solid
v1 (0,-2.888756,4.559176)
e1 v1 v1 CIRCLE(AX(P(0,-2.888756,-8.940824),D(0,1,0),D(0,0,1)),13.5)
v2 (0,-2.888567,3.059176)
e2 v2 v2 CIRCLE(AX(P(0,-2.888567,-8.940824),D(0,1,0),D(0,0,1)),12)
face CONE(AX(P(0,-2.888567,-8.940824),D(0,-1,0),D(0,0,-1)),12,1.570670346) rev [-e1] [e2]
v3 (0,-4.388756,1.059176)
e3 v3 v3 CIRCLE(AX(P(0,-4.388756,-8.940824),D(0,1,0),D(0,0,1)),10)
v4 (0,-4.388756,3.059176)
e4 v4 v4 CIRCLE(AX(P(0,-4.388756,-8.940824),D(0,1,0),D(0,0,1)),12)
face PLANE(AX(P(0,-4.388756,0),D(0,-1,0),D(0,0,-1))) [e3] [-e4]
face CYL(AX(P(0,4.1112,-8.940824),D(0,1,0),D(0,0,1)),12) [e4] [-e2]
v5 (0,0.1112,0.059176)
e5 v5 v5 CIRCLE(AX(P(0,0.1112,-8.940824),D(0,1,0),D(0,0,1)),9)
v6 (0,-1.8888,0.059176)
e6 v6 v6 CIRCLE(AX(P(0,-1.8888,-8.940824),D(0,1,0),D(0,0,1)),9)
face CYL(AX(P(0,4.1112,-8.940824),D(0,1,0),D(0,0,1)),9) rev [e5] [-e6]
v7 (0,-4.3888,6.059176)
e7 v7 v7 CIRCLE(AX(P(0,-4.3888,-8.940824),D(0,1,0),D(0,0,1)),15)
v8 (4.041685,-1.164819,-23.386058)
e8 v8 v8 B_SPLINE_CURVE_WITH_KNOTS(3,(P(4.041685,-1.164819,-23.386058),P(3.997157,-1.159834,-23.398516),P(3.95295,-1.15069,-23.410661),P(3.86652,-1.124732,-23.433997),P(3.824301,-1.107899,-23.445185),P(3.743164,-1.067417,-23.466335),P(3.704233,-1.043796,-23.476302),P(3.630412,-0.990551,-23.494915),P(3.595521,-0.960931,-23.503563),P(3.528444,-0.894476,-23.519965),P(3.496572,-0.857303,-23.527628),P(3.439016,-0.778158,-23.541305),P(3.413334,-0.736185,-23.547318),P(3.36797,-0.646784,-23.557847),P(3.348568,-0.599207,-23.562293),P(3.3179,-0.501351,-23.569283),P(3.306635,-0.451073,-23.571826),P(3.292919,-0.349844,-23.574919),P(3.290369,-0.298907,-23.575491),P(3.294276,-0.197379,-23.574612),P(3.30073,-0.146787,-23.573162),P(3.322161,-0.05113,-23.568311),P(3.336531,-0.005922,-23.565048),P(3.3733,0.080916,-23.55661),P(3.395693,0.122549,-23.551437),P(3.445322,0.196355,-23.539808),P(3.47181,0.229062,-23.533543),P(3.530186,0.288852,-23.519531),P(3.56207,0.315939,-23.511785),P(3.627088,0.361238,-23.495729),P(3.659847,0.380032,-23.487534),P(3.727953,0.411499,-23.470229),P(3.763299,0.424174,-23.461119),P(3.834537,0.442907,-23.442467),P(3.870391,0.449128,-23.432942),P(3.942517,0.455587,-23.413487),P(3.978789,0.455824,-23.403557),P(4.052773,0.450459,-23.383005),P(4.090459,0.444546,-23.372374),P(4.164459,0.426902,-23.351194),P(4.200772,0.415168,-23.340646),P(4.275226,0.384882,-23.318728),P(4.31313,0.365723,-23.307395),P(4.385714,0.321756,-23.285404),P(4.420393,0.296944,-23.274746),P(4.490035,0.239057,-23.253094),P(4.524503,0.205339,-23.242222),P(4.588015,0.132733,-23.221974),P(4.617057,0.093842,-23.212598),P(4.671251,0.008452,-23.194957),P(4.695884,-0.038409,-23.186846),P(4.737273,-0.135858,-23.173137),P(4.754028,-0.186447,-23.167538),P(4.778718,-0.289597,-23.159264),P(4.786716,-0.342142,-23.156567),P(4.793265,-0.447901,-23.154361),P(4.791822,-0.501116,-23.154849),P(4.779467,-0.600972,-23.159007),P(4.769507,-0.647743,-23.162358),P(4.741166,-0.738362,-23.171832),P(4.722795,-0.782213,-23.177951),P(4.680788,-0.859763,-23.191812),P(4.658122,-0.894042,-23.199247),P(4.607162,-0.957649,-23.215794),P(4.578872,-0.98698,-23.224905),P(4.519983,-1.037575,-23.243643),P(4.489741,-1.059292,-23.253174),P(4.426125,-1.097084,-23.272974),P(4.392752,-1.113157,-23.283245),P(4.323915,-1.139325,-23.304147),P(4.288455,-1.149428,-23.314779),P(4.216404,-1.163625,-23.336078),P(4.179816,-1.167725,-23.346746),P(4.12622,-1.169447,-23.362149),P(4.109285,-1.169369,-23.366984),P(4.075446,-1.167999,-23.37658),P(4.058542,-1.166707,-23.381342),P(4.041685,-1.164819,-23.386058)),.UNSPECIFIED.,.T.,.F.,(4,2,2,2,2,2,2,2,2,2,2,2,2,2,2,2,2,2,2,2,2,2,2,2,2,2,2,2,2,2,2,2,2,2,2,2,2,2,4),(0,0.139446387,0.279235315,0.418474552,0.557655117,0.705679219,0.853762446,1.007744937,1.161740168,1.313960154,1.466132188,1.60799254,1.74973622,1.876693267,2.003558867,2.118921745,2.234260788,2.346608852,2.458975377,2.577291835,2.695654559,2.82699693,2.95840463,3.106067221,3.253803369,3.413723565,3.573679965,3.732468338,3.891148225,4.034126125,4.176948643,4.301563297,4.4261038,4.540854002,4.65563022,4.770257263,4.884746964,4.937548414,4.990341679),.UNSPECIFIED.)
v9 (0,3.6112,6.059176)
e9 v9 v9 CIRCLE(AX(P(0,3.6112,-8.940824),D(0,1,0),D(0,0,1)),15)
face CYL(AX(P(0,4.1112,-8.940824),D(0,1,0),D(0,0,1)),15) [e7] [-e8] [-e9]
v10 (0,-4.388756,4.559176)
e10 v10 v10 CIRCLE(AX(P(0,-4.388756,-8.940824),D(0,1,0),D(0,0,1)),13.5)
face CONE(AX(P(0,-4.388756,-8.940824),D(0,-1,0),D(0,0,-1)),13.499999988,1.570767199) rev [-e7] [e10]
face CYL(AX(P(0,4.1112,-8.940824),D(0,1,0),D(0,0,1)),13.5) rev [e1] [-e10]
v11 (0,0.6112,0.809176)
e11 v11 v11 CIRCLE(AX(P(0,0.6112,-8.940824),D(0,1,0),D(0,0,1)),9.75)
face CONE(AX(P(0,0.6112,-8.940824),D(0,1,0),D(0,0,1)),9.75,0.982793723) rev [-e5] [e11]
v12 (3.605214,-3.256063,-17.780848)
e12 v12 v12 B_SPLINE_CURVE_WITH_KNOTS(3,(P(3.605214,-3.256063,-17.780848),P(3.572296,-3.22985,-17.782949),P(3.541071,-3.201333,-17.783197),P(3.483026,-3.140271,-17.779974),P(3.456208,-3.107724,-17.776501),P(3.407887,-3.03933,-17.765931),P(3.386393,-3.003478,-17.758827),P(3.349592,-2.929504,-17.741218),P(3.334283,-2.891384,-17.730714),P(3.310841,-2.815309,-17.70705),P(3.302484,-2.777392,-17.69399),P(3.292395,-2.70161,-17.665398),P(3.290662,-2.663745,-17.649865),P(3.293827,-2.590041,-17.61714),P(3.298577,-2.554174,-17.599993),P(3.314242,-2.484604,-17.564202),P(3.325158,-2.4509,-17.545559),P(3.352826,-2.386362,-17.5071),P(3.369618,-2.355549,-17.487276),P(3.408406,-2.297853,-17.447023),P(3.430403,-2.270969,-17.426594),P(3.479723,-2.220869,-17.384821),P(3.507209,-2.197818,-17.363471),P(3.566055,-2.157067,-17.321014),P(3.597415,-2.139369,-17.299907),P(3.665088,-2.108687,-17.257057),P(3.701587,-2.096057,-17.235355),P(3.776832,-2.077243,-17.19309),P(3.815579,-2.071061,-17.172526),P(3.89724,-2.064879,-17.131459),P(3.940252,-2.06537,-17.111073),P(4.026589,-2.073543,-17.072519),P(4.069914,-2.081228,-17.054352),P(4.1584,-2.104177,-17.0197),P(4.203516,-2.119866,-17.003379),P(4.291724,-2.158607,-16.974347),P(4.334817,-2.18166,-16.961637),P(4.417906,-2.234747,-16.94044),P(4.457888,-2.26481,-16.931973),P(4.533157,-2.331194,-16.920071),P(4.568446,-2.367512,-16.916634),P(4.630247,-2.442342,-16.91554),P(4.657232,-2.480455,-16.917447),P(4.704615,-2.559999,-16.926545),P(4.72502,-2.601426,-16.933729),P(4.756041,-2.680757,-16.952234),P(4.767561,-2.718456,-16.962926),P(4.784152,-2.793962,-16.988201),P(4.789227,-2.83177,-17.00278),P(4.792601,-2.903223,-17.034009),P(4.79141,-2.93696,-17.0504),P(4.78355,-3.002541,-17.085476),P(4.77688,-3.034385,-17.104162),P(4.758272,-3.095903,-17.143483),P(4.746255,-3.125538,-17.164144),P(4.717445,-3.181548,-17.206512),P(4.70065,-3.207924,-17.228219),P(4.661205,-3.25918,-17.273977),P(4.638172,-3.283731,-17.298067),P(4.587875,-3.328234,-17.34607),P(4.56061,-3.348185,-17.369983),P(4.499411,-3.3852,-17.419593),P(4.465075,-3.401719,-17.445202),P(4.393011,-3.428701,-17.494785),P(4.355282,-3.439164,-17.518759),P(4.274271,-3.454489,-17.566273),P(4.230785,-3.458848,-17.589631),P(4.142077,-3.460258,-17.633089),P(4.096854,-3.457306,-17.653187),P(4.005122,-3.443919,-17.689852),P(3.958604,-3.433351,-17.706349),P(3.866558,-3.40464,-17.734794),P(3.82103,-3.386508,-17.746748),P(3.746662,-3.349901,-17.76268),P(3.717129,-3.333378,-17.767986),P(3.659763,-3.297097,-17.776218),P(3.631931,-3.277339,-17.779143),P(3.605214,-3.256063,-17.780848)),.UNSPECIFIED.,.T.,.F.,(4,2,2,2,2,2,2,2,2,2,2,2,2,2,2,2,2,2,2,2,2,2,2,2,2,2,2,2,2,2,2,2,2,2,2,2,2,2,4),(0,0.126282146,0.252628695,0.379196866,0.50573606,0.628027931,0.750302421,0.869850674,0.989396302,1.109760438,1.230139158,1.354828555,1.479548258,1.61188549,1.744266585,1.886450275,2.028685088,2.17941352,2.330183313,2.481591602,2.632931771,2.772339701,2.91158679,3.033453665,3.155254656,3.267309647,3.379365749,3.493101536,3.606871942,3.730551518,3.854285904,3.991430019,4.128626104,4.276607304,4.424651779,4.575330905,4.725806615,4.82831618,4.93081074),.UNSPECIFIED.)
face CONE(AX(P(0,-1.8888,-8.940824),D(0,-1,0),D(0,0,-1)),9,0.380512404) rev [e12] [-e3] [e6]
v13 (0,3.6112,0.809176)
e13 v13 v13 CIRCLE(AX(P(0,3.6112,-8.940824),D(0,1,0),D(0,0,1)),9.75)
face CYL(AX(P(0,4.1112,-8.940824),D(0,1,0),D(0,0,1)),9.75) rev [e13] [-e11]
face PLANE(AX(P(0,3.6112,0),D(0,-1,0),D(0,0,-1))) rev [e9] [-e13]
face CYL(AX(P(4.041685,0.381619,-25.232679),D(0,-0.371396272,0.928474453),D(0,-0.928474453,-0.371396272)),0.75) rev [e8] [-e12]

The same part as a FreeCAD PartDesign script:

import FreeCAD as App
import Part
import Sketcher
from FreeCAD import Vector
Q = App.Units.Quantity


def add_polygon(sketch, points):
    """Adds a closed chain of lines whose ends are joined by coincident constraints."""
    first, n = sketch.GeometryCount, len(points)
    for a, b in zip(points, points[1:] + points[:1]):
        sketch.addGeometry(Part.LineSegment(App.Vector(*a, 0), App.Vector(*b, 0)), False)
    for i in range(n):
        sketch.addConstraint(Sketcher.Constraint("Coincident", first + i, 2, first + (i + 1) % n, 1))

doc = App.newDocument("Part")
params = doc.addObject("Spreadsheet::Sheet", "Params")
for row, (alias, value) in enumerate([
    ("sketch1_width", "8 mm"),
    ("sketch1_width2", "2 mm"),
    ("sketch1_width3", "3 mm"),
    ("sketch1_width4", "1.5 mm"),
    ("sketch1_height", "5.25 mm"),
    ("revolution_angle", "360 deg"),
    ("sketch2_diameter", "1.5 mm"),
], start=1):
    params.set(f"A{row}", alias)
    params.set(f"B{row}", "=" + value)
    params.setAlias(f"B{row}", alias)

body = doc.addObject("PartDesign::Body", "Body")

sketch1 = doc.addObject("Sketcher::SketchObject", "Sketch")
body.addObject(sketch1)
sketch1.AttachmentSupport = (doc.YZ_Plane, [""])
sketch1.MapMode = "FlatFace"
add_polygon(sketch1, [(3.6112, 6.059176), (-4.3888, 6.059176), (-4.388756, 4.559176), (-2.888756, 4.559176), (-2.888567, 3.059176), (-4.388756, 3.059176), (-4.388756, 1.059176), (-1.8888, 0.059176), (0.1112, 0.059176), (0.6112, 0.809176), (3.6112, 0.809176)])
sketch1.addGeometry(Part.LineSegment(Vector(3.6112, -8.940824, 0), Vector(-4.3888, -8.940824, 0)), True)
sketch1.addConstraint([
    Sketcher.Constraint("Horizontal", 0),
    Sketcher.Constraint("Horizontal", 2),
    Sketcher.Constraint("Horizontal", 4),
    Sketcher.Constraint("Vertical", 5),
    Sketcher.Constraint("Horizontal", 7),
    Sketcher.Constraint("Horizontal", 9),
    Sketcher.Constraint("Vertical", 10),
    Sketcher.Constraint("Horizontal", 11),
    Sketcher.Constraint("Vertical", 1, 2, 4, 2),
    Sketcher.Constraint("Vertical", 10, 2, 11, 1),
    Sketcher.Constraint("Vertical", 0, 2, 11, 2),
    Sketcher.Constraint("Equal", 7, 5),
    Sketcher.Constraint("Equal", 1, 3),
    Sketcher.Constraint("DistanceX", 0, 2, 0, 1, Q("8 mm")),
    Sketcher.Constraint("DistanceX", 7, 1, 7, 2, Q("2 mm")),
    Sketcher.Constraint("DistanceX", 9, 1, 9, 2, Q("3 mm")),
    Sketcher.Constraint("DistanceX", 2, 1, 2, 2, Q("1.5 mm")),
    Sketcher.Constraint("DistanceY", 3, 2, 0, 2, Q("3 mm")),
    Sketcher.Constraint("DistanceY", 6, 2, 5, 2, Q("1 mm")),
    Sketcher.Constraint("DistanceY", 11, 1, 7, 2, Q("9 mm")),
    Sketcher.Constraint("DistanceY", 10, 1, 10, 2, Q("5.25 mm")),
    Sketcher.Constraint("DistanceX", 7, 2, 8, 2, Q("0.5 mm")),
    Sketcher.Constraint("DistanceX", 4, 2, 4, 1, Q("1.500189 mm")),
    Sketcher.Constraint("DistanceX", 0, 2, -1, 1, Q("4.3888 mm")),
    Sketcher.Constraint("Distance", 6, Q("2.692542 mm")),
    Sketcher.Constraint("DistanceY", -1, 1, 0, 2, Q("6.059176 mm")),
])
sketch1.setExpression("Constraints[24]", "Params.sketch1_width")
sketch1.setExpression("Constraints[25]", "Params.sketch1_width2")
sketch1.setExpression("Constraints[26]", "Params.sketch1_width3")
sketch1.setExpression("Constraints[27]", "Params.sketch1_width4")
sketch1.setExpression("Constraints[31]", "Params.sketch1_height")
revolution = doc.addObject("PartDesign::Revolution", "Revolution")
body.addObject(revolution)
revolution.Profile = sketch1
revolution.ReferenceAxis = (sketch1, ["Axis0"])
revolution.setExpression("Angle", "Params.revolution_angle")

sketch2 = doc.addObject("Sketcher::SketchObject", "Sketch001")
body.addObject(sketch2)
sketch2.Placement = App.Placement(Vector(0, 5.926037, -14.814835), App.Rotation(Vector(1, 0, 0), Vector(0, 0.928474453, 0.371396272), Vector(0, -0.371396272, 0.928474453), "ZXY"))
sketch2.addGeometry(Part.Circle(Vector(4.041685, -9.017, 0), Vector(0, 0, 1), 0.75), False)
sketch2.addConstraint([
    Sketcher.Constraint("Diameter", 0, Q("1.5 mm")),
    Sketcher.Constraint("DistanceY", 0, 3, -1, 1, Q("9.017 mm")),
    Sketcher.Constraint("DistanceX", -1, 1, 0, 3, Q("4.041685 mm")),
])
sketch2.setExpression("Constraints[0]", "Params.sketch2_diameter")
pocket1 = doc.addObject("PartDesign::Pocket", "Pocket")
body.addObject(pocket1)
pocket1.Profile = sketch2
pocket1.Type = "ThroughAll"
pocket1.Midplane = True

doc.recompute()
